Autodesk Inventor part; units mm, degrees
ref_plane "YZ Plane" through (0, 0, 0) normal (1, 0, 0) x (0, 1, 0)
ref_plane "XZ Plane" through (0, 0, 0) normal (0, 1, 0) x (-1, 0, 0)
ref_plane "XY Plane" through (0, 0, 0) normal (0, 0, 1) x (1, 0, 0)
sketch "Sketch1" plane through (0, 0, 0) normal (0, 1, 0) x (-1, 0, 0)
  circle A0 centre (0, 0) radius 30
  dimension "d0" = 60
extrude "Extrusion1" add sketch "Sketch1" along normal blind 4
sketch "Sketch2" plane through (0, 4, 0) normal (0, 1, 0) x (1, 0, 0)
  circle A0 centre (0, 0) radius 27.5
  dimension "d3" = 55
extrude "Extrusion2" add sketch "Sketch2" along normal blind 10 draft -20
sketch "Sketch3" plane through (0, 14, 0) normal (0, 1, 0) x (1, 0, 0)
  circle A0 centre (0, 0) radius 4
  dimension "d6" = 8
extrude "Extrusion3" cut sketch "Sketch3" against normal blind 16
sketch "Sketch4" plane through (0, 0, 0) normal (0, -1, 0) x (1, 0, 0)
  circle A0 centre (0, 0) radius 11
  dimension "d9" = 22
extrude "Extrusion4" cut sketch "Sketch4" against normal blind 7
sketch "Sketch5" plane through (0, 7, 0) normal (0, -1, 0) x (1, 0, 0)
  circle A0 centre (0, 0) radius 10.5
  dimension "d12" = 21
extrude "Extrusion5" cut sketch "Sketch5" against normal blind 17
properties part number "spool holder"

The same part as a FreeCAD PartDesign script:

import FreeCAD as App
import Part
import Sketcher

doc = App.newDocument("Part")
body = doc.addObject("PartDesign::Body", "Body")

# Sketch on XZ plane
sketch1 = body.newObject("Sketcher::SketchObject", "Sketch")
sketch1.AttachmentSupport = (doc.getObject("XZ_Plane"), [""])
sketch1.MapMode = "FlatFace"
sketch1.addGeometry(Part.Circle(App.Vector(0, 0, 0), App.Vector(0, 0, 1), 30), False)
sketch1.addConstraint([
    Sketcher.Constraint("Coincident", 0, 3, -1, 1),
    Sketcher.Constraint("Diameter", 0, 60.0),
])
pad1 = body.newObject("PartDesign::Pad", "Pad")
pad1.Profile = sketch1
pad1.Length = 4
pad1.Reversed = True

# Sketch on XZ plane
sketch2 = body.newObject("Sketcher::SketchObject", "Sketch001")
sketch2.AttachmentSupport = (doc.getObject("XZ_Plane"), [""])
sketch2.MapMode = "FlatFace"
sketch2.AttachmentOffset = App.Placement(App.Vector(0, 0, -4), App.Rotation())
sketch2.addGeometry(Part.Circle(App.Vector(0, 0, 0), App.Vector(0, 0, 1), 28), False)
sketch2.addConstraint([
    Sketcher.Constraint("Coincident", 0, 3, -1, 1),
    Sketcher.Constraint("Diameter", 0, 55.0),
])
pad2 = body.newObject("PartDesign::Pad", "Pad001")
pad2.Profile = sketch2
pad2.Length = 10
pad2.Reversed = True
pad2.TaperAngle = -20

# Sketch on XZ plane
sketch3 = body.newObject("Sketcher::SketchObject", "Sketch002")
sketch3.AttachmentSupport = (doc.getObject("XZ_Plane"), [""])
sketch3.MapMode = "FlatFace"
sketch3.AttachmentOffset = App.Placement(App.Vector(0, 0, -14), App.Rotation())
sketch3.addGeometry(Part.Circle(App.Vector(0, 0, 0), App.Vector(0, 0, 1), 4), False)
sketch3.addConstraint([
    Sketcher.Constraint("Coincident", 0, 3, -1, 1),
    Sketcher.Constraint("Diameter", 0, 8.0),
])
pocket1 = body.newObject("PartDesign::Pocket", "Pocket")
pocket1.Profile = sketch3
pocket1.Length = 16
pocket1.Reversed = True

# Sketch on XZ plane
sketch4 = body.newObject("Sketcher::SketchObject", "Sketch003")
sketch4.AttachmentSupport = (doc.getObject("XZ_Plane"), [""])
sketch4.MapMode = "FlatFace"
sketch4.addGeometry(Part.Circle(App.Vector(0, 0, 0), App.Vector(0, 0, 1), 11), False)
sketch4.addConstraint([
    Sketcher.Constraint("Coincident", 0, 3, -1, 1),
    Sketcher.Constraint("Diameter", 0, 22.0),
])
pocket2 = body.newObject("PartDesign::Pocket", "Pocket001")
pocket2.Profile = sketch4
pocket2.Length = 7

# Sketch on XZ plane
sketch5 = body.newObject("Sketcher::SketchObject", "Sketch004")
sketch5.AttachmentSupport = (doc.getObject("XZ_Plane"), [""])
sketch5.MapMode = "FlatFace"
sketch5.AttachmentOffset = App.Placement(App.Vector(0, 0, -7), App.Rotation())
sketch5.addGeometry(Part.Circle(App.Vector(0, 0, 0), App.Vector(0, 0, 1), 10), False)
sketch5.addConstraint([
    Sketcher.Constraint("Coincident", 0, 3, -1, 1),
    Sketcher.Constraint("Diameter", 0, 21.0),
])
pocket3 = body.newObject("PartDesign::Pocket", "Pocket002")
pocket3.Profile = sketch5
pocket3.Length = 17

doc.recompute()
